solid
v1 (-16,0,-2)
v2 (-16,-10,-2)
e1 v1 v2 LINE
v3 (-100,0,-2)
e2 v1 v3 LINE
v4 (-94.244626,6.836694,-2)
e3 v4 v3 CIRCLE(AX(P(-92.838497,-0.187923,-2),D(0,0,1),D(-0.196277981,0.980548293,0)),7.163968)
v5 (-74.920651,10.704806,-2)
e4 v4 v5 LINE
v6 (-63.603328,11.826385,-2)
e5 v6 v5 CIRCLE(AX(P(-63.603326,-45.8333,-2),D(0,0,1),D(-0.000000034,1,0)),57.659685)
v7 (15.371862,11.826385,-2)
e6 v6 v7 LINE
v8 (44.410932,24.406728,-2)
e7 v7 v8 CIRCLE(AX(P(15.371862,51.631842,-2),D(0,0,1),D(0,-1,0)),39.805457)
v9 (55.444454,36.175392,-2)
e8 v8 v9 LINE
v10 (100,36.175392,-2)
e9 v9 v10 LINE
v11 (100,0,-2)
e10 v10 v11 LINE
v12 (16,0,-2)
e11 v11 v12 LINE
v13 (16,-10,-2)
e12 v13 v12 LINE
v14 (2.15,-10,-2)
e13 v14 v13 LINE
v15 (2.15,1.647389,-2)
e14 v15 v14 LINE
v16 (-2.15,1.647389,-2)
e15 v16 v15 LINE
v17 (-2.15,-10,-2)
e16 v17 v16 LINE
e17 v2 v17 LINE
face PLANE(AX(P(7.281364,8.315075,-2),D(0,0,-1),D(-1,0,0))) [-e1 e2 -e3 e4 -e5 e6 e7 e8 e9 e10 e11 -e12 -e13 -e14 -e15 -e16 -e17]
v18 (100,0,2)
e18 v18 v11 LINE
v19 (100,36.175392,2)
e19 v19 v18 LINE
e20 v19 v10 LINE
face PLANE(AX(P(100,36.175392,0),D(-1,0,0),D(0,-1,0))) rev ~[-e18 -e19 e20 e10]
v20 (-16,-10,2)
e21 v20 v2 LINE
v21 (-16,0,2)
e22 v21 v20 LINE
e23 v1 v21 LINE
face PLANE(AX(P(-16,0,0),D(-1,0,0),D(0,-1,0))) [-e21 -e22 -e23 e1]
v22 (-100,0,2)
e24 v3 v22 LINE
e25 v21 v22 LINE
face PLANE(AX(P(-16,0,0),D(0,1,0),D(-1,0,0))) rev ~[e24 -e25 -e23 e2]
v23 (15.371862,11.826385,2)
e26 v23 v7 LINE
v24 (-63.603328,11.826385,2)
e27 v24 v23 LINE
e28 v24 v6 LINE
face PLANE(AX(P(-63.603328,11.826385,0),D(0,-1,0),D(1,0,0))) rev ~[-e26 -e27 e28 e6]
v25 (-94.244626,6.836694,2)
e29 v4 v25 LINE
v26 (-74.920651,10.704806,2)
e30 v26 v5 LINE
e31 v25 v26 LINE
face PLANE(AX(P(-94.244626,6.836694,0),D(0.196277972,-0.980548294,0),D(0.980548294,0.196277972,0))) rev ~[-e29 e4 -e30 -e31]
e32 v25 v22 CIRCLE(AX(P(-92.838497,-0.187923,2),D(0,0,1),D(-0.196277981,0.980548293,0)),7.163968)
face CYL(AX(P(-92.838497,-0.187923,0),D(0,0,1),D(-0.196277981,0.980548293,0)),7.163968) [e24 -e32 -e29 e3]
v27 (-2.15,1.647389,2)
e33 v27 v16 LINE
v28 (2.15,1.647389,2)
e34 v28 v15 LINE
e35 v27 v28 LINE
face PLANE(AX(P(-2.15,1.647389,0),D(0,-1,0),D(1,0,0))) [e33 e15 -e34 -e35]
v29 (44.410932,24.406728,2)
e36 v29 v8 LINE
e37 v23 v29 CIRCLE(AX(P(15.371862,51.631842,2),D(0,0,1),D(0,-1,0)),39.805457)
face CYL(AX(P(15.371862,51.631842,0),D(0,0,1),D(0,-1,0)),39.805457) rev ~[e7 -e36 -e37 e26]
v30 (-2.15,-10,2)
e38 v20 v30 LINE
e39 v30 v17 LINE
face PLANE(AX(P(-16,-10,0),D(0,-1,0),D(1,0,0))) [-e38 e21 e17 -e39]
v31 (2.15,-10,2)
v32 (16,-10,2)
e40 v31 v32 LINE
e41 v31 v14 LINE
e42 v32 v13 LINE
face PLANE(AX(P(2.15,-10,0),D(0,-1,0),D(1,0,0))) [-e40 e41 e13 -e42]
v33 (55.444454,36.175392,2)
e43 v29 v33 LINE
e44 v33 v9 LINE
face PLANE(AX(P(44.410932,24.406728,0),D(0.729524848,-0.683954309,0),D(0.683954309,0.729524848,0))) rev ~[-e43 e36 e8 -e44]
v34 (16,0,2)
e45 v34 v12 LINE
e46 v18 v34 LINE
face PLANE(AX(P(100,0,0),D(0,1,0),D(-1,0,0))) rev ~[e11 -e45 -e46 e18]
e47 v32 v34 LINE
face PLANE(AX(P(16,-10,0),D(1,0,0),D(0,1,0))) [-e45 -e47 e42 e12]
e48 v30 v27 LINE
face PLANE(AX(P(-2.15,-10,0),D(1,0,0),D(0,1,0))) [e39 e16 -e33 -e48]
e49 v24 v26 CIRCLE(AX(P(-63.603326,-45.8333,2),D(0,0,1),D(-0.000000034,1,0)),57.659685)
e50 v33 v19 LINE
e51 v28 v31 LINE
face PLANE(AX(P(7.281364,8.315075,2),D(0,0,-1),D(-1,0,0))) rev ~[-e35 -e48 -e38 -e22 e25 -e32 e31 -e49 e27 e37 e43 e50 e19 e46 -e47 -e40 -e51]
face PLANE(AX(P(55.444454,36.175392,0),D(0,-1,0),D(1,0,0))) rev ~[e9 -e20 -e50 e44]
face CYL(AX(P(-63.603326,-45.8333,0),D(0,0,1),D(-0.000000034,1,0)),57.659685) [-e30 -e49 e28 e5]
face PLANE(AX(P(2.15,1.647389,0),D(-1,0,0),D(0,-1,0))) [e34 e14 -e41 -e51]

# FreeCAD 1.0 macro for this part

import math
import FreeCAD as App
import Part
import Sketcher
from FreeCAD import Vector
Q = App.Units.Quantity

doc = App.newDocument("Part")
body = doc.addObject("PartDesign::Body", "Body")

# Sketch on XY plane
sketch1 = doc.addObject("Sketcher::SketchObject", "Sketch")
body.addObject(sketch1)
sketch1.AttachmentSupport = (doc.XY_Plane, [""])
sketch1.MapMode = "FlatFace"
sketch1.addGeometry([
    Part.LineSegment(Vector(-74.920651, 10.704806, 0), Vector(-94.244626, 6.836694, 0)),  # 0
    Part.ArcOfCircle(Part.Circle(Vector(-92.838497, -0.187923, 0), Vector(0, 0, 1), 7.163968), math.radians(101.319389), math.radians(178.496862)),  # 1
    Part.LineSegment(Vector(-100, 0, 0), Vector(-16, 0, 0)),  # 2
    Part.LineSegment(Vector(-16, 0, 0), Vector(-16, -10, 0)),  # 3
    Part.LineSegment(Vector(-16, -10, 0), Vector(-2.15, -10, 0)),  # 4
    Part.LineSegment(Vector(-2.15, -10, 0), Vector(-2.15, 1.647389, 0)),  # 5
    Part.LineSegment(Vector(-2.15, 1.647389, 0), Vector(2.15, 1.647389, 0)),  # 6
    Part.LineSegment(Vector(2.15, 1.647389, 0), Vector(2.15, -10, 0)),  # 7
    Part.LineSegment(Vector(2.15, -10, 0), Vector(16, -10, 0)),  # 8
    Part.LineSegment(Vector(16, -10, 0), Vector(16, 0, 0)),  # 9
    Part.LineSegment(Vector(16, 0, 0), Vector(100, 0, 0)),  # 10
    Part.LineSegment(Vector(100, 0, 0), Vector(100, 36.175392, 0)),  # 11
    Part.LineSegment(Vector(100, 36.175392, 0), Vector(55.444454, 36.175392, 0)),  # 12
    Part.LineSegment(Vector(55.444454, 36.175392, 0), Vector(44.410932, 24.406728, 0)),  # 13
    Part.ArcOfCircle(Part.Circle(Vector(15.371862, 51.631842, 0), Vector(0, 0, 1), 39.805457), math.radians(-90), math.radians(-43.153425)),  # 14
    Part.LineSegment(Vector(15.371862, 11.826385, 0), Vector(-63.603328, 11.826385, 0)),  # 15
    Part.ArcOfCircle(Part.Circle(Vector(-63.603326, -45.8333, 0), Vector(0, 0, 1), 57.659685), math.radians(90.000002), math.radians(101.319388)),  # 16
], False)
sketch1.addConstraint([
    Sketcher.Constraint("Tangent", 0, 2, 1, 1),
    Sketcher.Constraint("Coincident", 1, 2, 2, 1),
    Sketcher.Constraint("Coincident", 2, 2, 3, 1),
    Sketcher.Constraint("Coincident", 3, 2, 4, 1),
    Sketcher.Constraint("Coincident", 4, 2, 5, 1),
    Sketcher.Constraint("Coincident", 5, 2, 6, 1),
    Sketcher.Constraint("Coincident", 6, 2, 7, 1),
    Sketcher.Constraint("Coincident", 7, 2, 8, 1),
    Sketcher.Constraint("Coincident", 8, 2, 9, 1),
    Sketcher.Constraint("Coincident", 9, 2, 10, 1),
    Sketcher.Constraint("Coincident", 10, 2, 11, 1),
    Sketcher.Constraint("Coincident", 11, 2, 12, 1),
    Sketcher.Constraint("Coincident", 12, 2, 13, 1),
    Sketcher.Constraint("Tangent", 13, 2, 14, 2),
    Sketcher.Constraint("Tangent", 14, 1, 15, 1),
    Sketcher.Constraint("Tangent", 15, 2, 16, 1),
    Sketcher.Constraint("Tangent", 16, 2, 0, 1),
    Sketcher.Constraint("Horizontal", 2),
    Sketcher.Constraint("Vertical", 3),
    Sketcher.Constraint("Horizontal", 4),
    Sketcher.Constraint("Vertical", 5),
    Sketcher.Constraint("Horizontal", 6),
    Sketcher.Constraint("Vertical", 7),
    Sketcher.Constraint("Horizontal", 8),
    Sketcher.Constraint("Vertical", 9),
    Sketcher.Constraint("Horizontal", 10),
    Sketcher.Constraint("Vertical", 11),
    Sketcher.Constraint("Horizontal", 12),
    Sketcher.Constraint("Horizontal", 15),
    Sketcher.Constraint("Symmetric", 2, 2, 9, 2, -1, 1),
    Sketcher.Constraint("Symmetric", 4, 2, 7, 2, -2),
    Sketcher.Constraint("Symmetric", 1, 2, 10, 2, -2),
    Sketcher.Constraint("DistanceX", 2, 1, 2, 2, Q("84 mm")),
    Sketcher.Constraint("DistanceY", 3, 2, 3, 1, Q("10 mm")),
    Sketcher.Constraint("DistanceX", 6, 1, 6, 2, Q("4.3 mm")),
    Sketcher.Constraint("DistanceX", 1, 2, -1, 1, Q("100 mm")),
    Sketcher.Constraint("Radius", 1, Q("7.163968 mm")),
    Sketcher.Constraint("Radius", 14, Q("39.805457 mm")),
    Sketcher.Constraint("Radius", 16, Q("57.659685 mm")),
    Sketcher.Constraint("DistanceX", 15, 2, 15, 1, Q("78.97519 mm")),
    Sketcher.Constraint("DistanceY", 5, 1, 5, 2, Q("11.647389 mm")),
    Sketcher.Constraint("DistanceY", 16, 3, -1, 1, Q("45.8333 mm")),
    Sketcher.Constraint("DistanceX", 0, 2, 16, 3, Q("30.6413 mm")),
    Sketcher.Constraint("DistanceX", 12, 2, 12, 1, Q("44.555546 mm")),
    Sketcher.Constraint("DistanceY", 11, 1, 11, 2, Q("36.175392 mm")),
    Sketcher.Constraint("DistanceX", -1, 1, 14, 3, Q("15.371862 mm")),
])
pad1 = doc.addObject("PartDesign::Pad", "Pad")
body.addObject(pad1)
pad1.Profile = sketch1
pad1.Length = 4
pad1.Midplane = True

doc.recompute()
